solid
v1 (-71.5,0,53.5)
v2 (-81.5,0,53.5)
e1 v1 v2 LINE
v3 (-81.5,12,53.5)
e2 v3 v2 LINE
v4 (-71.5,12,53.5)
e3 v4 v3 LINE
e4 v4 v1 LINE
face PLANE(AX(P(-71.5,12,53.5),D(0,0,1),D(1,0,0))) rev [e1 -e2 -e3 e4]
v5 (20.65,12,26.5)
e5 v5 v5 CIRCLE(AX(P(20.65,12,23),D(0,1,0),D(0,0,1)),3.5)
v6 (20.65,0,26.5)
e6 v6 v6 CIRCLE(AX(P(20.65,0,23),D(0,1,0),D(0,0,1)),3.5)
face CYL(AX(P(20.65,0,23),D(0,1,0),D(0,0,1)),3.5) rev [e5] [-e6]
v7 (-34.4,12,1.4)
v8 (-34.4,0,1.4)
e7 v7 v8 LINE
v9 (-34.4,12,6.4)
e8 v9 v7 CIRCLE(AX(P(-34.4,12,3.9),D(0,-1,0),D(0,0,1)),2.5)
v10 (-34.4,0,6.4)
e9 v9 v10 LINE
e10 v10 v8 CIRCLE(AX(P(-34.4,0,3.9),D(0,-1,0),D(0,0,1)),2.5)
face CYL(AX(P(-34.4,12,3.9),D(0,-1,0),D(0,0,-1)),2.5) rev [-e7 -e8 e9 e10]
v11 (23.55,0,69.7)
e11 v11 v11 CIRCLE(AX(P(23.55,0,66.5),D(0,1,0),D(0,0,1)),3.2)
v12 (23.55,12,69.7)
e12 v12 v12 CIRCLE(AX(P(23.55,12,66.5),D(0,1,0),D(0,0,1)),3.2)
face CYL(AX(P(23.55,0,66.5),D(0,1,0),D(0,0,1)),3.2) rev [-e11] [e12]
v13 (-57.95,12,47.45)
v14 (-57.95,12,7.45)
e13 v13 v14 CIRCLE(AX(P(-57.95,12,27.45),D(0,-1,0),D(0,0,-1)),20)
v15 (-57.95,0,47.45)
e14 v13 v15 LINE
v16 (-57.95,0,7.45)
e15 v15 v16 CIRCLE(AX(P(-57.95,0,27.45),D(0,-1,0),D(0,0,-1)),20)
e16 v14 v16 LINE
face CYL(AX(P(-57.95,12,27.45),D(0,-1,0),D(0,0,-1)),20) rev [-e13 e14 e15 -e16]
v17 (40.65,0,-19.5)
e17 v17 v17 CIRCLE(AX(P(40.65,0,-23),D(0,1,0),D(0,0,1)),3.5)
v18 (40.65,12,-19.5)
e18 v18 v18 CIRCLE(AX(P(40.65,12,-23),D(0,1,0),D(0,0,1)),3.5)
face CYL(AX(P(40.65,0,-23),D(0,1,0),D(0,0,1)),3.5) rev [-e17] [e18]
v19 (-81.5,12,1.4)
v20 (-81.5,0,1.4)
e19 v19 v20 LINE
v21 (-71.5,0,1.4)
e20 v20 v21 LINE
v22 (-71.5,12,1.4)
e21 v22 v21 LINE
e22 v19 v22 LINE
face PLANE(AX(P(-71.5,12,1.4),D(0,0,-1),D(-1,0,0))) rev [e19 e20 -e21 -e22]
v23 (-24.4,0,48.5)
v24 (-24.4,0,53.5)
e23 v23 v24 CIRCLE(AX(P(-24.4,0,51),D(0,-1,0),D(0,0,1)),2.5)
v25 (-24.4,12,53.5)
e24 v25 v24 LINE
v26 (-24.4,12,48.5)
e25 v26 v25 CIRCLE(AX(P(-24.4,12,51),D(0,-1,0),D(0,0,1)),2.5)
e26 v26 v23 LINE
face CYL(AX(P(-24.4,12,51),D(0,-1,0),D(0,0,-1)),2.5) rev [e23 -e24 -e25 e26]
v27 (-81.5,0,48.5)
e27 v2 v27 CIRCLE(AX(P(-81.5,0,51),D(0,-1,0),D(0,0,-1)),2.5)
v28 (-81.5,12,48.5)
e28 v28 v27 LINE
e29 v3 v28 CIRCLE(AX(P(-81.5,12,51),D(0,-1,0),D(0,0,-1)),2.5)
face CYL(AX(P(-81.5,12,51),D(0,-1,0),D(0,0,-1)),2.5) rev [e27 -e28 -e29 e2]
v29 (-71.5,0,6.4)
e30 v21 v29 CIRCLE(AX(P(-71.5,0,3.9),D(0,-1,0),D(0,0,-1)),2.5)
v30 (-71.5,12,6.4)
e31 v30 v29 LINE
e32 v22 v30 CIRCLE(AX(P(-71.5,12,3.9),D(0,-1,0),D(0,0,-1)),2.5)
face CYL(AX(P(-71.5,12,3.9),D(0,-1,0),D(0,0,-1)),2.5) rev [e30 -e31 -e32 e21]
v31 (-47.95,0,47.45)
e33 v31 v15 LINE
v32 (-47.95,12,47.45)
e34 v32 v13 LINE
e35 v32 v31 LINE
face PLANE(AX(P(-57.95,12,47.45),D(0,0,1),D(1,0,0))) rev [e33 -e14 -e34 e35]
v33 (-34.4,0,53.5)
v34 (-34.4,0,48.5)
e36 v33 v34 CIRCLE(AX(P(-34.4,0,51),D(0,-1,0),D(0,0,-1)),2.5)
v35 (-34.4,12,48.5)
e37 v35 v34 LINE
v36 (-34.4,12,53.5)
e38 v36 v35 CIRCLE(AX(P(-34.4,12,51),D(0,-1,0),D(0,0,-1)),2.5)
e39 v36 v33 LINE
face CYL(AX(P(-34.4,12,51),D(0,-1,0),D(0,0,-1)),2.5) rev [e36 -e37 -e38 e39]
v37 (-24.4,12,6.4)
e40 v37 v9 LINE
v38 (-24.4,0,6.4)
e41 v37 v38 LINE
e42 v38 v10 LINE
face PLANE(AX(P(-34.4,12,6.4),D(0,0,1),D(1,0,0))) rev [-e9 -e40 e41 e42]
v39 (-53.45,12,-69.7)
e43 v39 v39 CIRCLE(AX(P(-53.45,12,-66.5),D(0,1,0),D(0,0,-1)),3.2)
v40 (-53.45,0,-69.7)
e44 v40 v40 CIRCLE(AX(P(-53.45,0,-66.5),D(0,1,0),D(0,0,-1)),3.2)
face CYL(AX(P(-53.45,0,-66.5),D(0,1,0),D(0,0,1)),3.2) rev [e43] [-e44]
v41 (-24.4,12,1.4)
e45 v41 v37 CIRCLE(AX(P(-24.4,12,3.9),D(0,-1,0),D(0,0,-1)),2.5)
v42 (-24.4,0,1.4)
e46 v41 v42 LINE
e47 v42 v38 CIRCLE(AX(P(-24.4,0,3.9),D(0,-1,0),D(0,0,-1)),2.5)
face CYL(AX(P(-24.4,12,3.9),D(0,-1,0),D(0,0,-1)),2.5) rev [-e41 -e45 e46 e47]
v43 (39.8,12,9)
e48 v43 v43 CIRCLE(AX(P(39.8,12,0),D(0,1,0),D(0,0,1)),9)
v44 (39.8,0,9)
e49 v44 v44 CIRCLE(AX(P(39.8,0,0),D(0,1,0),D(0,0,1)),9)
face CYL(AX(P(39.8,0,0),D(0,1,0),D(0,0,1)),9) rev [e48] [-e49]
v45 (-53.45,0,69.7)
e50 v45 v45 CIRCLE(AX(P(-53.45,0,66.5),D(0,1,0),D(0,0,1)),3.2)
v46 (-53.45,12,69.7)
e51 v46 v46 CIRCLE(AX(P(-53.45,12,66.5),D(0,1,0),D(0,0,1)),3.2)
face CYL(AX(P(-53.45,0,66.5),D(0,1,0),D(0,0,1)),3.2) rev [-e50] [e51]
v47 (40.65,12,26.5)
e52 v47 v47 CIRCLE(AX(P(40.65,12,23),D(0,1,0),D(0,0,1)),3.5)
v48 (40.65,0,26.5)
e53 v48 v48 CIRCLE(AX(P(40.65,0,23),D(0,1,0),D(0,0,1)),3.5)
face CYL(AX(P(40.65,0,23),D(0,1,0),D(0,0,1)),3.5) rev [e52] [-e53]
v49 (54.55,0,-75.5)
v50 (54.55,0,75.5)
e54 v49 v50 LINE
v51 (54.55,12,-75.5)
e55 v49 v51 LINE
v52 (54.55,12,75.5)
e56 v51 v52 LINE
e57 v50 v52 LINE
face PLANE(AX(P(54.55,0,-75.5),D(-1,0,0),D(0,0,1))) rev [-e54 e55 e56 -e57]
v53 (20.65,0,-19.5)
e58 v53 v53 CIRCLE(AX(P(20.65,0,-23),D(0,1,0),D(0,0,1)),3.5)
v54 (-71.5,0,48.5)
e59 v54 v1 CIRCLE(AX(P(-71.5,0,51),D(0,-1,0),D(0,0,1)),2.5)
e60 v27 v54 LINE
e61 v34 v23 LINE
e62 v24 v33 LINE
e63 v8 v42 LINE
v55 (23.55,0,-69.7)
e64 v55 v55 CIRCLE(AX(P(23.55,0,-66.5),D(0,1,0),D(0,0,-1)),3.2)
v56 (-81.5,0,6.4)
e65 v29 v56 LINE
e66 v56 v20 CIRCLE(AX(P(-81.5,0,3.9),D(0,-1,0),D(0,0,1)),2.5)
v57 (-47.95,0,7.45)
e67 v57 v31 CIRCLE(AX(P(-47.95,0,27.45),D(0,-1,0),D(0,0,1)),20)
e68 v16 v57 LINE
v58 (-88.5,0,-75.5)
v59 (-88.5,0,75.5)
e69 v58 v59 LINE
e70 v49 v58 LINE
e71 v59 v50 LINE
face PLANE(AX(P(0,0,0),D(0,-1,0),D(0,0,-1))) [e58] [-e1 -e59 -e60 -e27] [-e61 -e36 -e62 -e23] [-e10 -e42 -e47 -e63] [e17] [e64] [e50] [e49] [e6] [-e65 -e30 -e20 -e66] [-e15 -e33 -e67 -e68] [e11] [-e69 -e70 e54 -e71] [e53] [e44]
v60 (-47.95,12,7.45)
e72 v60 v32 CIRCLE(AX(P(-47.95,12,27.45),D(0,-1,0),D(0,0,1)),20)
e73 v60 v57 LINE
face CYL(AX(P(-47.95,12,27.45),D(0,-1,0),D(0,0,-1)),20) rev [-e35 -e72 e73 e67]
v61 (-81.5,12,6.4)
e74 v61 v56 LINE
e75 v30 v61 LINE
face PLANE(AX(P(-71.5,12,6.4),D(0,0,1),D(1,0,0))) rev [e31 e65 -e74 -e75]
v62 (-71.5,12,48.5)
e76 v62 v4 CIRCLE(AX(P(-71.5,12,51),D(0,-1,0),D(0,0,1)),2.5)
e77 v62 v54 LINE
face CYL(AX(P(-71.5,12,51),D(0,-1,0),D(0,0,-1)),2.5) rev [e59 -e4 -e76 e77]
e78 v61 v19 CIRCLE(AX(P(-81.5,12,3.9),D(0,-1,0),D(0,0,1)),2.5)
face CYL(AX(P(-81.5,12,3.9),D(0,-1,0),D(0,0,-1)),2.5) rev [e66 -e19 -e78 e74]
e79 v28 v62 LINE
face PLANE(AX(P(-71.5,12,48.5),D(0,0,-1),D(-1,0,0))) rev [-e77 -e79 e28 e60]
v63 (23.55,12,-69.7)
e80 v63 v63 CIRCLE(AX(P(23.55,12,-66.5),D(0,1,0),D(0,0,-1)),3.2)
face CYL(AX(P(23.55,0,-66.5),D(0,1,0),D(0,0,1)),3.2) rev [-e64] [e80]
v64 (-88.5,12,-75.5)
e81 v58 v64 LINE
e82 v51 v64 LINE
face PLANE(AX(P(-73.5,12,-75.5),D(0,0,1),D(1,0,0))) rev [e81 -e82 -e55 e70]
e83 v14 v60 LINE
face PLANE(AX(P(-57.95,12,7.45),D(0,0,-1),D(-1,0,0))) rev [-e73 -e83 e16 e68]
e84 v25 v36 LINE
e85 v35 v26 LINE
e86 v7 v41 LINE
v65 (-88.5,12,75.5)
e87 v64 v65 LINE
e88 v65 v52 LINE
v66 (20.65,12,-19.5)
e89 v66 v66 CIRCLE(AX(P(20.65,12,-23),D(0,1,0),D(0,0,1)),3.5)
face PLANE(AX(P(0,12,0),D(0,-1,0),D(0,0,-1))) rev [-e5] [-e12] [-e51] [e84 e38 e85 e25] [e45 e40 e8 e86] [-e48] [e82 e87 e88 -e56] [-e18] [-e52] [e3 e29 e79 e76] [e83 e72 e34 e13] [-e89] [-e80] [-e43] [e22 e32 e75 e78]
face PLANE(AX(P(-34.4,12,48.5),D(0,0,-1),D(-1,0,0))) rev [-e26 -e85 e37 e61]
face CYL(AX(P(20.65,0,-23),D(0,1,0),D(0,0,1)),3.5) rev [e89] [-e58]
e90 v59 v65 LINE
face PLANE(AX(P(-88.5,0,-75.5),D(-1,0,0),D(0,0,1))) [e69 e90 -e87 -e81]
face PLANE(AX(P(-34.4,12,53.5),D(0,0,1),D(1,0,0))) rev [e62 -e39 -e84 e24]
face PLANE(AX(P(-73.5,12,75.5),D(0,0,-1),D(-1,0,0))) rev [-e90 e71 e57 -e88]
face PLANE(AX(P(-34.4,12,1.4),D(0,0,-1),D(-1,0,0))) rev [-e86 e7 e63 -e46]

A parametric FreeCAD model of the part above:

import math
import FreeCAD as App
import Part
import Sketcher
from FreeCAD import Vector

doc = App.newDocument("Part")
body = doc.addObject("PartDesign::Body", "Body")

sketch1 = body.newObject("Sketcher::SketchObject", "Sketch")
sketch1.AttachmentSupport = (doc.getObject("XZ_Plane"), [""])
sketch1.MapMode = "FlatFace"
sketch1.addGeometry(Part.LineSegment(Vector(-74, -76, 0), Vector(-74, 76, 0)), False)
sketch1.addGeometry(Part.LineSegment(Vector(-74, 76, 0), Vector(74, 76, 0)), False)
sketch1.addGeometry(Part.LineSegment(Vector(74, 76, 0), Vector(74, -76, 0)), False)
sketch1.addGeometry(Part.LineSegment(Vector(74, -76, 0), Vector(-74, -76, 0)), False)
sketch1.addConstraint(Sketcher.Constraint("Coincident", 0, 2, 1, 1))
sketch1.addConstraint(Sketcher.Constraint("Coincident", 1, 2, 2, 1))
sketch1.addConstraint(Sketcher.Constraint("Coincident", 2, 2, 3, 1))
sketch1.addConstraint(Sketcher.Constraint("Coincident", 3, 2, 0, 1))
sketch1.addConstraint(Sketcher.Constraint("Vertical", 0))
sketch1.addConstraint(Sketcher.Constraint("Horizontal", 1))
sketch1.addConstraint(Sketcher.Constraint("Vertical", 2))
sketch1.addConstraint(Sketcher.Constraint("Horizontal", 3))
sketch1.addConstraint(Sketcher.Constraint("Symmetric", 0, 2, 2, 2, -1, 1))
sketch1.addConstraint(Sketcher.Constraint("DistanceX", 1, 1, 1, 2, 147.0))
sketch1.addConstraint(Sketcher.Constraint("DistanceY", 0, 1, 0, 2, 151.0))
pad1 = body.newObject("PartDesign::Pad", "Pad")
pad1.Profile = sketch1
pad1.Length = 12
pad1.Reversed = True

sketch2 = body.newObject("Sketcher::SketchObject", "Sketch001")
sketch2.AttachmentSupport = (doc.getObject("XZ_Plane"), [""])
sketch2.MapMode = "FlatFace"
sketch2.AttachmentOffset = App.Placement(Vector(0, 0, -12), App.Rotation())
sketch2.addGeometry(Part.Circle(Vector(39.8, 0, 0), Vector(0, 0, 1), 9), False)
sketch2.addGeometry(Part.Circle(Vector(20.6, 23, 0), Vector(0, 0, 1), 3.5), False)
sketch2.addGeometry(Part.Circle(Vector(40.6, 23, 0), Vector(0, 0, 1), 3.5), False)
sketch2.addGeometry(Part.Circle(Vector(40.6, -23, 0), Vector(0, 0, 1), 3.5), False)
sketch2.addGeometry(Part.Circle(Vector(20.6, -23, 0), Vector(0, 0, 1), 3.5), False)
sketch2.addConstraint(Sketcher.Constraint("Equal", 1, 2))
sketch2.addConstraint(Sketcher.Constraint("Equal", 2, 3))
sketch2.addConstraint(Sketcher.Constraint("Equal", 3, 4))
sketch2.addConstraint(Sketcher.Constraint("Symmetric", 2, 3, 3, 3, -1))
sketch2.addConstraint(Sketcher.Constraint("Symmetric", 1, 3, 4, 3, -1))
sketch2.addConstraint(Sketcher.Constraint("PointOnObject", 0, 3, -1))
sketch2.addConstraint(Sketcher.Constraint("Horizontal", 1, 3, 2, 3))
sketch2.addConstraint(Sketcher.Constraint("Diameter", 0, 18.0))
sketch2.addConstraint(Sketcher.Constraint("Diameter", 1, 7.0))
sketch2.addConstraint(Sketcher.Constraint("DistanceY", -1, 1, 1, 3, 23.0))
sketch2.addConstraint(Sketcher.Constraint("DistanceX", 1, 3, 2, 3, 20.0))
sketch2.addConstraint(Sketcher.Constraint("DistanceX", -1, 1, 0, 3, 39.8))
sketch2.addConstraint(Sketcher.Constraint("DistanceX", -1, 1, 1, 3, 20.65))
pocket1 = body.newObject("PartDesign::Pocket", "Pocket")
pocket1.Profile = sketch2
pocket1.Type = "ThroughAll"
pocket1.Reversed = True

sketch3 = body.newObject("Sketcher::SketchObject", "Sketch002")
sketch3.AttachmentSupport = (doc.getObject("XZ_Plane"), [""])
sketch3.MapMode = "FlatFace"
sketch3.AttachmentOffset = App.Placement(Vector(0, 0, -12), App.Rotation())
sketch3.addGeometry(Part.LineSegment(Vector(-88, -76, 0), Vector(-88, 76, 0)), False)
sketch3.addGeometry(Part.LineSegment(Vector(-88, 76, 0), Vector(-74, 76, 0)), False)
sketch3.addGeometry(Part.LineSegment(Vector(-74, 76, 0), Vector(-74, -76, 0)), False)
sketch3.addGeometry(Part.LineSegment(Vector(-74, -76, 0), Vector(-88, -76, 0)), False)
sketch3.addConstraint(Sketcher.Constraint("Coincident", 0, 2, 1, 1))
sketch3.addConstraint(Sketcher.Constraint("Coincident", 1, 2, 2, 1))
sketch3.addConstraint(Sketcher.Constraint("Coincident", 2, 2, 3, 1))
sketch3.addConstraint(Sketcher.Constraint("Coincident", 3, 2, 0, 1))
sketch3.addConstraint(Sketcher.Constraint("Vertical", 0))
sketch3.addConstraint(Sketcher.Constraint("Horizontal", 1))
sketch3.addConstraint(Sketcher.Constraint("Vertical", 2))
sketch3.addConstraint(Sketcher.Constraint("Horizontal", 3))
sketch3.addConstraint(Sketcher.Constraint("DistanceX", 1, 1, 1, 2, 15.0))
sketch3.addConstraint(Sketcher.Constraint("DistanceY", 0, 1, 0, 2, 151.0))
sketch3.addConstraint(Sketcher.Constraint("DistanceX", 0, 2, -1, 1, 88.5))
sketch3.addConstraint(Sketcher.Constraint("DistanceY", -1, 1, 0, 2, 75.5))
pad2 = body.newObject("PartDesign::Pad", "Pad001")
pad2.Profile = sketch3
pad2.Length = 12

sketch4 = body.newObject("Sketcher::SketchObject", "Sketch003")
sketch4.AttachmentSupport = (doc.getObject("XZ_Plane"), [""])
sketch4.MapMode = "FlatFace"
sketch4.addGeometry(Part.LineSegment(Vector(-71.5, 53.5, 0), Vector(-81.5, 53.5, 0)), False)
sketch4.addGeometry(Part.ArcOfCircle(Part.Circle(Vector(-81.5, 51, 0), Vector(0, 0, 1), 2.5), math.radians(90), math.radians(270)), False)
sketch4.addGeometry(Part.LineSegment(Vector(-81.5, 48.5, 0), Vector(-71.5, 48.5, 0)), False)
sketch4.addGeometry(Part.ArcOfCircle(Part.Circle(Vector(-71.5, 51, 0), Vector(0, 0, 1), 2.5), math.radians(-90), math.radians(90)), False)
sketch4.addGeometry(Part.LineSegment(Vector(-71.5, 6.4, 0), Vector(-81.5, 6.4, 0)), False)
sketch4.addGeometry(Part.ArcOfCircle(Part.Circle(Vector(-81.5, 3.9, 0), Vector(0, 0, 1), 2.5), math.radians(90), math.radians(270)), False)
sketch4.addGeometry(Part.LineSegment(Vector(-81.5, 1.4, 0), Vector(-71.5, 1.4, 0)), False)
sketch4.addGeometry(Part.ArcOfCircle(Part.Circle(Vector(-71.5, 3.9, 0), Vector(0, 0, 1), 2.5), math.radians(-90), math.radians(90)), False)
sketch4.addGeometry(Part.LineSegment(Vector(-48, 47.5, 0), Vector(-58, 47.5, 0)), False)
sketch4.addGeometry(Part.ArcOfCircle(Part.Circle(Vector(-58, 27.4, 0), Vector(0, 0, 1), 20), math.radians(90), math.radians(270)), False)
sketch4.addGeometry(Part.LineSegment(Vector(-58, 7.5, 0), Vector(-48, 7.5, 0)), False)
sketch4.addGeometry(Part.ArcOfCircle(Part.Circle(Vector(-48, 27.4, 0), Vector(0, 0, 1), 20), math.radians(-90), math.radians(90)), False)
sketch4.addGeometry(Part.LineSegment(Vector(-34.4, 1.4, 0), Vector(-24.4, 1.4, 0)), False)
sketch4.addGeometry(Part.ArcOfCircle(Part.Circle(Vector(-24.4, 3.9, 0), Vector(0, 0, 1), 2.5), math.radians(-90), math.radians(90)), False)
sketch4.addGeometry(Part.LineSegment(Vector(-24.4, 6.4, 0), Vector(-34.4, 6.4, 0)), False)
sketch4.addGeometry(Part.ArcOfCircle(Part.Circle(Vector(-34.4, 3.9, 0), Vector(0, 0, 1), 2.5), math.radians(90), math.radians(270)), False)
sketch4.addGeometry(Part.LineSegment(Vector(-34.4, 48.5, 0), Vector(-24.4, 48.5, 0)), False)
sketch4.addGeometry(Part.ArcOfCircle(Part.Circle(Vector(-24.4, 51, 0), Vector(0, 0, 1), 2.5), math.radians(-90), math.radians(90)), False)
sketch4.addGeometry(Part.LineSegment(Vector(-24.4, 53.5, 0), Vector(-34.4, 53.5, 0)), False)
sketch4.addGeometry(Part.ArcOfCircle(Part.Circle(Vector(-34.4, 51, 0), Vector(0, 0, 1), 2.5), math.radians(90), math.radians(270)), False)
sketch4.addConstraint(Sketcher.Constraint("Tangent", 0, 2, 1, 1))
sketch4.addConstraint(Sketcher.Constraint("Tangent", 1, 2, 2, 1))
sketch4.addConstraint(Sketcher.Constraint("Tangent", 2, 2, 3, 1))
sketch4.addConstraint(Sketcher.Constraint("Tangent", 3, 2, 0, 1))
sketch4.addConstraint(Sketcher.Constraint("Tangent", 4, 2, 5, 1))
sketch4.addConstraint(Sketcher.Constraint("Tangent", 5, 2, 6, 1))
sketch4.addConstraint(Sketcher.Constraint("Tangent", 6, 2, 7, 1))
sketch4.addConstraint(Sketcher.Constraint("Tangent", 7, 2, 4, 1))
sketch4.addConstraint(Sketcher.Constraint("Tangent", 8, 2, 9, 1))
sketch4.addConstraint(Sketcher.Constraint("Tangent", 9, 2, 10, 1))
sketch4.addConstraint(Sketcher.Constraint("Tangent", 10, 2, 11, 1))
sketch4.addConstraint(Sketcher.Constraint("Tangent", 11, 2, 8, 1))
sketch4.addConstraint(Sketcher.Constraint("Tangent", 12, 2, 13, 1))
sketch4.addConstraint(Sketcher.Constraint("Tangent", 13, 2, 14, 1))
sketch4.addConstraint(Sketcher.Constraint("Tangent", 14, 2, 15, 1))
sketch4.addConstraint(Sketcher.Constraint("Tangent", 15, 2, 12, 1))
sketch4.addConstraint(Sketcher.Constraint("Tangent", 16, 2, 17, 1))
sketch4.addConstraint(Sketcher.Constraint("Tangent", 17, 2, 18, 1))
sketch4.addConstraint(Sketcher.Constraint("Tangent", 18, 2, 19, 1))
sketch4.addConstraint(Sketcher.Constraint("Tangent", 19, 2, 16, 1))
sketch4.addConstraint(Sketcher.Constraint("Horizontal", 0))
sketch4.addConstraint(Sketcher.Constraint("Horizontal", 2))
sketch4.addConstraint(Sketcher.Constraint("Horizontal", 4))
sketch4.addConstraint(Sketcher.Constraint("Horizontal", 6))
sketch4.addConstraint(Sketcher.Constraint("Horizontal", 8))
sketch4.addConstraint(Sketcher.Constraint("Horizontal", 10))
sketch4.addConstraint(Sketcher.Constraint("Horizontal", 12))
sketch4.addConstraint(Sketcher.Constraint("Horizontal", 14))
sketch4.addConstraint(Sketcher.Constraint("Horizontal", 16))
sketch4.addConstraint(Sketcher.Constraint("Horizontal", 18))
sketch4.addConstraint(Sketcher.Constraint("Equal", 3, 5))
sketch4.addConstraint(Sketcher.Constraint("Equal", 7, 13))
sketch4.addConstraint(Sketcher.Constraint("Equal", 15, 17))
sketch4.addConstraint(Sketcher.Constraint("Horizontal", 7, 3, 13, 3))
sketch4.addConstraint(Sketcher.Constraint("Horizontal", 3, 3, 17, 3))
sketch4.addConstraint(Sketcher.Constraint("Vertical", 1, 3, 5, 3))
sketch4.addConstraint(Sketcher.Constraint("Vertical", 3, 3, 7, 3))
sketch4.addConstraint(Sketcher.Constraint("Vertical", 13, 3, 17, 3))
sketch4.addConstraint(Sketcher.Constraint("Vertical", 15, 3, 19, 3))
sketch4.addConstraint(Sketcher.Constraint("Equal", 6, 8))
sketch4.addConstraint(Sketcher.Constraint("Equal", 10, 12))
sketch4.addConstraint(Sketcher.Constraint("Radius", 9, 20.0))
sketch4.addConstraint(Sketcher.Constraint("Radius", 1, 2.5))
sketch4.addConstraint(Sketcher.Constraint("DistanceX", 0, 2, 0, 1, 10.0))
sketch4.addConstraint(Sketcher.Constraint("DistanceY", -1, 1, 1, 3, 51.0))
sketch4.addConstraint(Sketcher.Constraint("DistanceX", 1, 3, -1, 1, 81.5))
sketch4.addConstraint(Sketcher.Constraint("DistanceY", -1, 1, 5, 3, 3.9))
sketch4.addConstraint(Sketcher.Constraint("DistanceX", 13, 3, -1, 1, 24.4))
sketch4.addConstraint(Sketcher.Constraint("DistanceX", 9, 3, -1, 1, 57.95))
sketch4.addConstraint(Sketcher.Constraint("DistanceY", -1, 1, 9, 3, 27.45))
pocket2 = body.newObject("PartDesign::Pocket", "Pocket001")
pocket2.Profile = sketch4
pocket2.Type = "ThroughAll"

sketch5 = body.newObject("Sketcher::SketchObject", "Sketch004")
sketch5.AttachmentSupport = (doc.getObject("XZ_Plane"), [""])
sketch5.MapMode = "FlatFace"
sketch5.AttachmentOffset = App.Placement(Vector(0, 0, -12), App.Rotation())
sketch5.addGeometry(Part.LineSegment(Vector(55, -76, 0), Vector(55, 76, 0)), False)
sketch5.addGeometry(Part.LineSegment(Vector(55, 76, 0), Vector(74, 76, 0)), False)
sketch5.addGeometry(Part.LineSegment(Vector(74, 76, 0), Vector(74, -76, 0)), False)
sketch5.addGeometry(Part.LineSegment(Vector(74, -76, 0), Vector(55, -76, 0)), False)
sketch5.addConstraint(Sketcher.Constraint("Coincident", 0, 2, 1, 1))
sketch5.addConstraint(Sketcher.Constraint("Coincident", 1, 2, 2, 1))
sketch5.addConstraint(Sketcher.Constraint("Coincident", 2, 2, 3, 1))
sketch5.addConstraint(Sketcher.Constraint("Coincident", 3, 2, 0, 1))
sketch5.addConstraint(Sketcher.Constraint("Vertical", 0))
sketch5.addConstraint(Sketcher.Constraint("Horizontal", 1))
sketch5.addConstraint(Sketcher.Constraint("Vertical", 2))
sketch5.addConstraint(Sketcher.Constraint("Horizontal", 3))
sketch5.addConstraint(Sketcher.Constraint("DistanceY", 0, 1, 0, 2, 151.0))
sketch5.addConstraint(Sketcher.Constraint("DistanceX", 1, 1, 1, 2, 18.95))
sketch5.addConstraint(Sketcher.Constraint("DistanceY", -1, 1, 0, 2, 75.5))
sketch5.addConstraint(Sketcher.Constraint("DistanceX", -1, 1, 1, 2, 73.5))
pocket3 = body.newObject("PartDesign::Pocket", "Pocket002")
pocket3.Profile = sketch5
pocket3.Type = "ThroughAll"
pocket3.Reversed = True

sketch6 = body.newObject("Sketcher::SketchObject", "Sketch005")
sketch6.AttachmentSupport = (doc.getObject("XZ_Plane"), [""])
sketch6.MapMode = "FlatFace"
sketch6.AttachmentOffset = App.Placement(Vector(0, 0, -12), App.Rotation())
sketch6.addGeometry(Part.Circle(Vector(23.6, 66.5, 0), Vector(0, 0, 1), 3.2), False)
sketch6.addGeometry(Part.Circle(Vector(-53.5, 66.5, 0), Vector(0, 0, 1), 3.2), False)
sketch6.addGeometry(Part.Circle(Vector(-53.5, -66.5, 0), Vector(0, 0, 1), 3.2), False)
sketch6.addGeometry(Part.Circle(Vector(23.6, -66.5, 0), Vector(0, 0, 1), 3.2), False)
sketch6.addConstraint(Sketcher.Constraint("Equal", 0, 1))
sketch6.addConstraint(Sketcher.Constraint("Equal", 1, 2))
sketch6.addConstraint(Sketcher.Constraint("Equal", 2, 3))
sketch6.addConstraint(Sketcher.Constraint("Symmetric", 1, 3, 2, 3, -1))
sketch6.addConstraint(Sketcher.Constraint("Symmetric", 0, 3, 3, 3, -1))
sketch6.addConstraint(Sketcher.Constraint("Horizontal", 0, 3, 1, 3))
sketch6.addConstraint(Sketcher.Constraint("Diameter", 0, 6.4))
sketch6.addConstraint(Sketcher.Constraint("DistanceX", 1, 3, 0, 3, 77.0))
sketch6.addConstraint(Sketcher.Constraint("DistanceY", 2, 3, 1, 3, 133.0))
sketch6.addConstraint(Sketcher.Constraint("DistanceX", -1, 1, 0, 3, 23.55))
pocket4 = body.newObject("PartDesign::Pocket", "Pocket003")
pocket4.Profile = sketch6
pocket4.Type = "ThroughAll"
pocket4.Reversed = True

doc.recompute()
